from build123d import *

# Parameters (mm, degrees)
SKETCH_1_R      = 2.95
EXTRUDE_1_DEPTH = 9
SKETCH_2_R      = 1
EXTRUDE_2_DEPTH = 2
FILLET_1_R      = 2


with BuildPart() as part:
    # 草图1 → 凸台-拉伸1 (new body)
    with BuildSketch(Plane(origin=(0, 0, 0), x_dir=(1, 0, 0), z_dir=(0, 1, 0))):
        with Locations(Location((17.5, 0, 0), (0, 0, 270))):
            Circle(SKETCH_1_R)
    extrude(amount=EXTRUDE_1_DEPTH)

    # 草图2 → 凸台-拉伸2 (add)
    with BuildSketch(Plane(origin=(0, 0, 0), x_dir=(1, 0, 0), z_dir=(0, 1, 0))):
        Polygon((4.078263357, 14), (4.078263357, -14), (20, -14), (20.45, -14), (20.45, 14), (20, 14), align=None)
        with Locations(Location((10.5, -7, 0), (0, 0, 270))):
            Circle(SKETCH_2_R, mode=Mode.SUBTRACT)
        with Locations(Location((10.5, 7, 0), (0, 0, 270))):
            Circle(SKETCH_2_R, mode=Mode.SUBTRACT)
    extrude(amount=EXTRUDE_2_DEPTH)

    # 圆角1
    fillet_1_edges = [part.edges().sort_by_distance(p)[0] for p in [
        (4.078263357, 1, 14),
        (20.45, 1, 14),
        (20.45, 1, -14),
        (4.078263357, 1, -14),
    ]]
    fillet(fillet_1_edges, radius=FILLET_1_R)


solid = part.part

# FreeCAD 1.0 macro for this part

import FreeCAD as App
import Part
import Sketcher
from FreeCAD import Vector


def edges_at(feature, points):
    """Names of the edges that pass closest to the given points."""
    edges = feature.Shape.Edges
    near = lambda p: min(range(len(edges)), key=lambda i: edges[i].distToShape(Part.Vertex(*p))[0])
    return sorted({f"Edge{near(p) + 1}" for p in points})


def add_polygon(sketch, points):
    """Adds a closed chain of lines whose ends are joined by coincident constraints."""
    first, n = sketch.GeometryCount, len(points)
    for a, b in zip(points, points[1:] + points[:1]):
        sketch.addGeometry(Part.LineSegment(App.Vector(*a, 0), App.Vector(*b, 0)), False)
    for i in range(n):
        sketch.addConstraint(Sketcher.Constraint("Coincident", first + i, 2, first + (i + 1) % n, 1))

doc = App.newDocument("Part")
body = doc.addObject("PartDesign::Body", "Body")

sketch1 = body.newObject("Sketcher::SketchObject", "Sketch")
sketch1.AttachmentSupport = (doc.getObject("XZ_Plane"), [""])
sketch1.MapMode = "FlatFace"
sketch1.addGeometry(Part.Circle(Vector(17.5, 0, 0), Vector(0, 0, 1), 2.95), False)
sketch1.addConstraint(Sketcher.Constraint("PointOnObject", 0, 3, -1))
sketch1.addConstraint(Sketcher.Constraint("Diameter", 0, 5.9))
sketch1.addConstraint(Sketcher.Constraint("DistanceX", -1, 1, 0, 3, 17.5))
pad1 = body.newObject("PartDesign::Pad", "Pad")
pad1.Profile = sketch1
pad1.Length = 9
pad1.Reversed = True

sketch2 = body.newObject("Sketcher::SketchObject", "Sketch001")
sketch2.AttachmentSupport = (doc.getObject("XZ_Plane"), [""])
sketch2.MapMode = "FlatFace"
add_polygon(sketch2, [(4.078263, -14), (4.078263, 14), (20.45, 14), (20.45, -14)])
sketch2.addGeometry(Part.Circle(Vector(10.5, 7, 0), Vector(0, 0, 1), 1), False)
sketch2.addGeometry(Part.Circle(Vector(10.5, -7, 0), Vector(0, 0, 1), 1), False)
sketch2.addConstraint(Sketcher.Constraint("Vertical", 0))
sketch2.addConstraint(Sketcher.Constraint("Horizontal", 1))
sketch2.addConstraint(Sketcher.Constraint("Vertical", 2))
sketch2.addConstraint(Sketcher.Constraint("Horizontal", 3))
sketch2.addConstraint(Sketcher.Constraint("Equal", 4, 5))
sketch2.addConstraint(Sketcher.Constraint("Symmetric", 4, 3, 5, 3, -1))
sketch2.addConstraint(Sketcher.Constraint("Diameter", 4, 2.0))
sketch2.addConstraint(Sketcher.Constraint("DistanceY", 0, 1, 0, 2, 28.0))
sketch2.addConstraint(Sketcher.Constraint("DistanceY", -1, 1, 4, 3, 7.0))
sketch2.addConstraint(Sketcher.Constraint("DistanceY", -1, 1, 0, 2, 14.0))
sketch2.addConstraint(Sketcher.Constraint("DistanceX", -1, 1, 4, 3, 10.5))
sketch2.addConstraint(Sketcher.Constraint("DistanceX", -1, 1, 1, 2, 20.45))
sketch2.addConstraint(Sketcher.Constraint("DistanceX", 1, 1, 1, 2, 16.371737))
pad2 = body.newObject("PartDesign::Pad", "Pad001")
pad2.Profile = sketch2
pad2.Length = 2
pad2.Reversed = True
doc.recompute()

fillet = body.newObject("PartDesign::Fillet", "Fillet")
fillet.Base = (pad2, edges_at(pad2, [
    (4.078, 1, 14),
    (20.45, 1, 14),
    (20.45, 1, -14),
    (4.078, 1, -14),
]))
fillet.Radius = 2

doc.recompute()
